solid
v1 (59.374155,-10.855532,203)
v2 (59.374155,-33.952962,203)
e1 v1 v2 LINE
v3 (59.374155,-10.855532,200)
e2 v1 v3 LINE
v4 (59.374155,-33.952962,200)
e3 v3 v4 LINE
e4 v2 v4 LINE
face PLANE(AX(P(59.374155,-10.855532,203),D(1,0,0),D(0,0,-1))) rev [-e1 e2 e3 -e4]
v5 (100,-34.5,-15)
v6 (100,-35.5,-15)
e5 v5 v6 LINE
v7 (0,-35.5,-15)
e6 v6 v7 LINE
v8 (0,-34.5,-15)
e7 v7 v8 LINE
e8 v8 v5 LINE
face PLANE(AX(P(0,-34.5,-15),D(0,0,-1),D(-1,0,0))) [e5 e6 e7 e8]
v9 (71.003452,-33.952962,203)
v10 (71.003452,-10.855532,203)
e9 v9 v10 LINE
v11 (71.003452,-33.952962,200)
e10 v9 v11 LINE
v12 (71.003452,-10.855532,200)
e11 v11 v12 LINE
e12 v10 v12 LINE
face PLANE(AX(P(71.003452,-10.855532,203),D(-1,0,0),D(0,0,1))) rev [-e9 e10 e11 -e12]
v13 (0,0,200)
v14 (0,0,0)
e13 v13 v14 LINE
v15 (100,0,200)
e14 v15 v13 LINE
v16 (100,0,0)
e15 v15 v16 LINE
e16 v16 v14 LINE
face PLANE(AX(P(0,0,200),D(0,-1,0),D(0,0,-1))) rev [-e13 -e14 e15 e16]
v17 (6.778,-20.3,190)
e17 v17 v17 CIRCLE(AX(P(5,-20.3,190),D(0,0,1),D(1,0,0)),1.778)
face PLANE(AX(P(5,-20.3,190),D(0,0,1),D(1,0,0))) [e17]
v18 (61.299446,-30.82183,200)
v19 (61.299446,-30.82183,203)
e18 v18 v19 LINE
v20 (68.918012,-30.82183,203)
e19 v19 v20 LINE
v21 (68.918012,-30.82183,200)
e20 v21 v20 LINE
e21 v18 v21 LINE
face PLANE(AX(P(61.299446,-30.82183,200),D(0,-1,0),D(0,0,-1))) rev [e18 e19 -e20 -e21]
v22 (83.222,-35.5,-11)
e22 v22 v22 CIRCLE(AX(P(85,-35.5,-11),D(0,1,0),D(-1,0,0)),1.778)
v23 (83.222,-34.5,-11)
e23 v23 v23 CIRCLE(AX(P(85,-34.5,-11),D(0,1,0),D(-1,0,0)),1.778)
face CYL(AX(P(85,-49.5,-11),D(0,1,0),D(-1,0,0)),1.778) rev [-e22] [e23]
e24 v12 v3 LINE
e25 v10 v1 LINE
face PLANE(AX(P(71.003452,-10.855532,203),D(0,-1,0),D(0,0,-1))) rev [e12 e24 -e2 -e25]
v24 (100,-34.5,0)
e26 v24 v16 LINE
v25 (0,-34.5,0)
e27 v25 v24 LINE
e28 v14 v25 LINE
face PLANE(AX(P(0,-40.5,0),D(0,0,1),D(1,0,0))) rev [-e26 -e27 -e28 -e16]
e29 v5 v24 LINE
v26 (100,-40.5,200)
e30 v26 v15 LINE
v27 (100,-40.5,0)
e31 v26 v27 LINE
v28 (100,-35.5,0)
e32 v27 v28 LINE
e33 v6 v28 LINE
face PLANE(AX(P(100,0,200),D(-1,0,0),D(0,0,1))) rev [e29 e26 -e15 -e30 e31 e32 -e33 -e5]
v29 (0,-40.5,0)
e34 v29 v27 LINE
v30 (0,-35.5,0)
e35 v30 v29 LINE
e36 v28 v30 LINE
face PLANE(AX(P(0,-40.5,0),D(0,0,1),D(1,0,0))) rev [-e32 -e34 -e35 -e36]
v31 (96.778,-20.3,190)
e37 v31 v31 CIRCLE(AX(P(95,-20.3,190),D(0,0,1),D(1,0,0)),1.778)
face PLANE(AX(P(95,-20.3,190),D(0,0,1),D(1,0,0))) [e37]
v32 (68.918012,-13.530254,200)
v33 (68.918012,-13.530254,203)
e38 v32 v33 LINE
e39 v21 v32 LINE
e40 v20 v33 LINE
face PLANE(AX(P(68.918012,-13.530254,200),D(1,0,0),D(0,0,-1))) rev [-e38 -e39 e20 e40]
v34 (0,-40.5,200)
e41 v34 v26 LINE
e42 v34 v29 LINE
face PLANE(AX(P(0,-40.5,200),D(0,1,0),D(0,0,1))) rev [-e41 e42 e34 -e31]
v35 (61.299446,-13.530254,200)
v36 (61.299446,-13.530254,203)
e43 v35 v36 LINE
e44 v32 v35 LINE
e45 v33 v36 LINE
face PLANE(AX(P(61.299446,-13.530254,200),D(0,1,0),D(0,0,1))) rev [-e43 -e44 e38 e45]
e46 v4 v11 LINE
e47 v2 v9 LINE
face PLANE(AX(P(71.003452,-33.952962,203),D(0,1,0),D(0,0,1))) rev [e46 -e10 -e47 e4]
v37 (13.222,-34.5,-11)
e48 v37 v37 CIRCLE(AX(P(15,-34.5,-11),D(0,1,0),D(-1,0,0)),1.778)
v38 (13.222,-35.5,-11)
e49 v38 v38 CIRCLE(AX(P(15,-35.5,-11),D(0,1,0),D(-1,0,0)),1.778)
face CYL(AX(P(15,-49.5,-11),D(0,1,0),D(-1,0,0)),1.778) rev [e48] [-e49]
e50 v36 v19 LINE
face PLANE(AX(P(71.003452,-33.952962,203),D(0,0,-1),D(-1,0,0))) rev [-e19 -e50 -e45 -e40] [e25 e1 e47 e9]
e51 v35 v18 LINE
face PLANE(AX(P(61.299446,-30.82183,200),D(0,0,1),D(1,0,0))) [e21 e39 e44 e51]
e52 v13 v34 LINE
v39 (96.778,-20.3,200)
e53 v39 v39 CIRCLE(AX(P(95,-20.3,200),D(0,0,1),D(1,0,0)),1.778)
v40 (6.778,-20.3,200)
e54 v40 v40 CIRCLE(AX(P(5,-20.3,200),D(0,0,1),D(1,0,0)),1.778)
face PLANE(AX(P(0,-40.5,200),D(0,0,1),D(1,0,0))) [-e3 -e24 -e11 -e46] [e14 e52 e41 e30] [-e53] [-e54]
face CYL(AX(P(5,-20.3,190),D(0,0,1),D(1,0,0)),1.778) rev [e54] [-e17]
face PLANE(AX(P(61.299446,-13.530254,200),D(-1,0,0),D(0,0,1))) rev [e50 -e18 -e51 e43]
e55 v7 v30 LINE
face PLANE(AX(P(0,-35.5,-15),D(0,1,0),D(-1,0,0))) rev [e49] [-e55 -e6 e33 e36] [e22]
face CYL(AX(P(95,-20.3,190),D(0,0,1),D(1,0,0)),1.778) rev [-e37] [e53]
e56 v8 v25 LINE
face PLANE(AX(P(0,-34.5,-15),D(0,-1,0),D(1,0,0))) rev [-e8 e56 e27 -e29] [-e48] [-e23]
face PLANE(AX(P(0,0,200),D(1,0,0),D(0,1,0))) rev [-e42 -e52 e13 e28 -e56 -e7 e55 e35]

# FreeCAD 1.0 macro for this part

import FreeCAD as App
import Part
import Sketcher
from FreeCAD import Vector
Q = App.Units.Quantity

doc = App.newDocument("Part")
params = doc.addObject("Spreadsheet::Sheet", "Params")
for row, (alias, value) in enumerate([
    ("sketch1_width", "100 mm"),
    ("sketch1_height", "40.5 mm"),
    ("pad1_length", "200 mm"),
    ("pocket1_length", "10 mm"),
    ("sketch3_width", "100 mm"),
    ("sketch3_height", "1 mm"),
    ("pad2_length", "15 mm"),
    ("pocket2_length", "15 mm"),
    ("pad3_length", "3 mm"),
    ("pocket3_length", "3 mm"),
], start=1):
    params.set(f"A{row}", alias)
    params.set(f"B{row}", "=" + value)
    params.setAlias(f"B{row}", alias)

body = doc.addObject("PartDesign::Body", "Body")

sketch1 = body.newObject("Sketcher::SketchObject", "Sketch")
sketch1.AttachmentSupport = (doc.getObject("XY_Plane"), [""])
sketch1.MapMode = "FlatFace"
sketch1.addGeometry([
    Part.LineSegment(Vector(0, 0, 0), Vector(0, -40, 0)),
    Part.LineSegment(Vector(0, -40, 0), Vector(100, -40, 0)),
    Part.LineSegment(Vector(100, -40, 0), Vector(100, 0, 0)),
    Part.LineSegment(Vector(100, 0, 0), Vector(0, 0, 0)),
], False)
sketch1.addConstraint([
    Sketcher.Constraint("Coincident", 0, 2, 1, 1),
    Sketcher.Constraint("Coincident", 1, 2, 2, 1),
    Sketcher.Constraint("Coincident", 2, 2, 3, 1),
    Sketcher.Constraint("Coincident", 3, 2, 0, 1),
    Sketcher.Constraint("Vertical", 0),
    Sketcher.Constraint("Horizontal", 1),
    Sketcher.Constraint("Vertical", 2),
    Sketcher.Constraint("Horizontal", 3),
    Sketcher.Constraint("Coincident", 3, 2, -1, 1),
    Sketcher.Constraint("DistanceX", 1, 1, 1, 2, Q("100 mm")),
    Sketcher.Constraint("DistanceY", 0, 2, 0, 1, Q("40.5 mm")),
])
sketch1.setExpression("Constraints[9]", "Params.sketch1_width")
sketch1.setExpression("Constraints[10]", "Params.sketch1_height")
pad1 = body.newObject("PartDesign::Pad", "Pad")
pad1.Profile = sketch1
pad1.setExpression("Length", "Params.pad1_length")

sketch2 = body.newObject("Sketcher::SketchObject", "Sketch001")
sketch2.AttachmentSupport = (doc.getObject("XY_Plane"), [""])
sketch2.MapMode = "FlatFace"
sketch2.AttachmentOffset = App.Placement(Vector(0, 0, 200), App.Rotation())
sketch2.addGeometry([
    Part.Circle(Vector(95, -20.3, 0), Vector(0, 0, 1), 1.8),
    Part.Circle(Vector(5, -20.3, 0), Vector(0, 0, 1), 1.8),
], False)
sketch2.addConstraint([
    Sketcher.Constraint("Equal", 0, 1),
    Sketcher.Constraint("Horizontal", 0, 3, 1, 3),
    Sketcher.Constraint("Diameter", 0, Q("3.556 mm")),
    Sketcher.Constraint("DistanceX", -1, 1, 0, 3, Q("95 mm")),
    Sketcher.Constraint("DistanceX", -1, 1, 1, 3, Q("5 mm")),
    Sketcher.Constraint("DistanceY", 0, 3, -1, 1, Q("20.3 mm")),
])
pocket1 = body.newObject("PartDesign::Pocket", "Pocket")
pocket1.Profile = sketch2
pocket1.setExpression("Length", "Params.pocket1_length")

sketch3 = body.newObject("Sketcher::SketchObject", "Sketch002")
sketch3.AttachmentSupport = (doc.getObject("XY_Plane"), [""])
sketch3.MapMode = "FlatFace"
sketch3.addGeometry([
    Part.LineSegment(Vector(100, -34.5, 0), Vector(100, -35.5, 0)),
    Part.LineSegment(Vector(100, -35.5, 0), Vector(0, -35.5, 0)),
    Part.LineSegment(Vector(0, -35.5, 0), Vector(0, -34.5, 0)),
    Part.LineSegment(Vector(0, -34.5, 0), Vector(100, -34.5, 0)),
], False)
sketch3.addConstraint([
    Sketcher.Constraint("Coincident", 0, 2, 1, 1),
    Sketcher.Constraint("Coincident", 1, 2, 2, 1),
    Sketcher.Constraint("Coincident", 2, 2, 3, 1),
    Sketcher.Constraint("Coincident", 3, 2, 0, 1),
    Sketcher.Constraint("Vertical", 0),
    Sketcher.Constraint("Horizontal", 1),
    Sketcher.Constraint("Vertical", 2),
    Sketcher.Constraint("Horizontal", 3),
    Sketcher.Constraint("PointOnObject", 1, 2, -2),
    Sketcher.Constraint("DistanceX", 1, 2, 1, 1, Q("100 mm")),
    Sketcher.Constraint("DistanceY", 0, 2, 0, 1, Q("1 mm")),
    Sketcher.Constraint("DistanceY", 0, 2, -1, 1, Q("35.5 mm")),
])
sketch3.setExpression("Constraints[9]", "Params.sketch3_width")
sketch3.setExpression("Constraints[10]", "Params.sketch3_height")
pad2 = body.newObject("PartDesign::Pad", "Pad001")
pad2.Profile = sketch3
pad2.setExpression("Length", "Params.pad2_length")
pad2.Reversed = True

sketch4 = body.newObject("Sketcher::SketchObject", "Sketch003")
sketch4.AttachmentSupport = (doc.getObject("XZ_Plane"), [""])
sketch4.MapMode = "FlatFace"
sketch4.AttachmentOffset = App.Placement(Vector(0, 0, 34.5), App.Rotation())
sketch4.addGeometry([
    Part.Circle(Vector(15, -11, 0), Vector(0, 0, 1), 1.8),
    Part.Circle(Vector(85, -11, 0), Vector(0, 0, 1), 1.8),
], False)
sketch4.addConstraint([
    Sketcher.Constraint("Equal", 0, 1),
    Sketcher.Constraint("Horizontal", 0, 3, 1, 3),
    Sketcher.Constraint("Diameter", 0, Q("3.556 mm")),
    Sketcher.Constraint("DistanceX", -1, 1, 0, 3, Q("15 mm")),
    Sketcher.Constraint("DistanceY", 0, 3, -1, 1, Q("11 mm")),
    Sketcher.Constraint("DistanceX", -1, 1, 1, 3, Q("85 mm")),
])
pocket2 = body.newObject("PartDesign::Pocket", "Pocket001")
pocket2.Profile = sketch4
pocket2.setExpression("Length", "Params.pocket2_length")
pocket2.Reversed = True

sketch5 = body.newObject("Sketcher::SketchObject", "Sketch004")
sketch5.AttachmentSupport = (doc.getObject("XY_Plane"), [""])
sketch5.MapMode = "FlatFace"
sketch5.AttachmentOffset = App.Placement(Vector(0, 0, 200), App.Rotation())
sketch5.addGeometry([
    Part.LineSegment(Vector(59, -11, 0), Vector(59, -34, 0)),
    Part.LineSegment(Vector(59, -34, 0), Vector(71, -34, 0)),
    Part.LineSegment(Vector(71, -34, 0), Vector(71, -11, 0)),
    Part.LineSegment(Vector(71, -11, 0), Vector(59, -11, 0)),
], False)
sketch5.addConstraint([
    Sketcher.Constraint("Coincident", 0, 2, 1, 1),
    Sketcher.Constraint("Coincident", 1, 2, 2, 1),
    Sketcher.Constraint("Coincident", 2, 2, 3, 1),
    Sketcher.Constraint("Coincident", 3, 2, 0, 1),
    Sketcher.Constraint("Vertical", 0),
    Sketcher.Constraint("Horizontal", 1),
    Sketcher.Constraint("Vertical", 2),
    Sketcher.Constraint("Horizontal", 3),
    Sketcher.Constraint("DistanceY", 0, 2, 0, 1, Q("23.09743 mm")),
    Sketcher.Constraint("DistanceX", 1, 1, 1, 2, Q("11.629297 mm")),
    Sketcher.Constraint("DistanceY", 2, 2, -1, 1, Q("10.855532 mm")),
    Sketcher.Constraint("DistanceX", -1, 1, 0, 2, Q("59.374155 mm")),
])
pad3 = body.newObject("PartDesign::Pad", "Pad002")
pad3.Profile = sketch5
pad3.setExpression("Length", "Params.pad3_length")

sketch6 = body.newObject("Sketcher::SketchObject", "Sketch005")
sketch6.AttachmentSupport = (doc.getObject("XY_Plane"), [""])
sketch6.MapMode = "FlatFace"
sketch6.AttachmentOffset = App.Placement(Vector(0, 0, 203), App.Rotation())
sketch6.addGeometry([
    Part.LineSegment(Vector(61, -14, 0), Vector(61, -31, 0)),
    Part.LineSegment(Vector(61, -31, 0), Vector(69, -31, 0)),
    Part.LineSegment(Vector(69, -31, 0), Vector(69, -14, 0)),
    Part.LineSegment(Vector(69, -14, 0), Vector(61, -14, 0)),
], False)
sketch6.addConstraint([
    Sketcher.Constraint("Coincident", 0, 2, 1, 1),
    Sketcher.Constraint("Coincident", 1, 2, 2, 1),
    Sketcher.Constraint("Coincident", 2, 2, 3, 1),
    Sketcher.Constraint("Coincident", 3, 2, 0, 1),
    Sketcher.Constraint("Vertical", 0),
    Sketcher.Constraint("Horizontal", 1),
    Sketcher.Constraint("Vertical", 2),
    Sketcher.Constraint("Horizontal", 3),
    Sketcher.Constraint("DistanceX", 1, 1, 1, 2, Q("7.618566 mm")),
    Sketcher.Constraint("DistanceY", 0, 2, 0, 1, Q("17.291577 mm")),
    Sketcher.Constraint("DistanceY", 0, 2, -1, 1, Q("30.82183 mm")),
    Sketcher.Constraint("DistanceX", -1, 1, 0, 2, Q("61.299446 mm")),
])
pocket3 = body.newObject("PartDesign::Pocket", "Pocket002")
pocket3.Profile = sketch6
pocket3.setExpression("Length", "Params.pocket3_length")

doc.recompute()
